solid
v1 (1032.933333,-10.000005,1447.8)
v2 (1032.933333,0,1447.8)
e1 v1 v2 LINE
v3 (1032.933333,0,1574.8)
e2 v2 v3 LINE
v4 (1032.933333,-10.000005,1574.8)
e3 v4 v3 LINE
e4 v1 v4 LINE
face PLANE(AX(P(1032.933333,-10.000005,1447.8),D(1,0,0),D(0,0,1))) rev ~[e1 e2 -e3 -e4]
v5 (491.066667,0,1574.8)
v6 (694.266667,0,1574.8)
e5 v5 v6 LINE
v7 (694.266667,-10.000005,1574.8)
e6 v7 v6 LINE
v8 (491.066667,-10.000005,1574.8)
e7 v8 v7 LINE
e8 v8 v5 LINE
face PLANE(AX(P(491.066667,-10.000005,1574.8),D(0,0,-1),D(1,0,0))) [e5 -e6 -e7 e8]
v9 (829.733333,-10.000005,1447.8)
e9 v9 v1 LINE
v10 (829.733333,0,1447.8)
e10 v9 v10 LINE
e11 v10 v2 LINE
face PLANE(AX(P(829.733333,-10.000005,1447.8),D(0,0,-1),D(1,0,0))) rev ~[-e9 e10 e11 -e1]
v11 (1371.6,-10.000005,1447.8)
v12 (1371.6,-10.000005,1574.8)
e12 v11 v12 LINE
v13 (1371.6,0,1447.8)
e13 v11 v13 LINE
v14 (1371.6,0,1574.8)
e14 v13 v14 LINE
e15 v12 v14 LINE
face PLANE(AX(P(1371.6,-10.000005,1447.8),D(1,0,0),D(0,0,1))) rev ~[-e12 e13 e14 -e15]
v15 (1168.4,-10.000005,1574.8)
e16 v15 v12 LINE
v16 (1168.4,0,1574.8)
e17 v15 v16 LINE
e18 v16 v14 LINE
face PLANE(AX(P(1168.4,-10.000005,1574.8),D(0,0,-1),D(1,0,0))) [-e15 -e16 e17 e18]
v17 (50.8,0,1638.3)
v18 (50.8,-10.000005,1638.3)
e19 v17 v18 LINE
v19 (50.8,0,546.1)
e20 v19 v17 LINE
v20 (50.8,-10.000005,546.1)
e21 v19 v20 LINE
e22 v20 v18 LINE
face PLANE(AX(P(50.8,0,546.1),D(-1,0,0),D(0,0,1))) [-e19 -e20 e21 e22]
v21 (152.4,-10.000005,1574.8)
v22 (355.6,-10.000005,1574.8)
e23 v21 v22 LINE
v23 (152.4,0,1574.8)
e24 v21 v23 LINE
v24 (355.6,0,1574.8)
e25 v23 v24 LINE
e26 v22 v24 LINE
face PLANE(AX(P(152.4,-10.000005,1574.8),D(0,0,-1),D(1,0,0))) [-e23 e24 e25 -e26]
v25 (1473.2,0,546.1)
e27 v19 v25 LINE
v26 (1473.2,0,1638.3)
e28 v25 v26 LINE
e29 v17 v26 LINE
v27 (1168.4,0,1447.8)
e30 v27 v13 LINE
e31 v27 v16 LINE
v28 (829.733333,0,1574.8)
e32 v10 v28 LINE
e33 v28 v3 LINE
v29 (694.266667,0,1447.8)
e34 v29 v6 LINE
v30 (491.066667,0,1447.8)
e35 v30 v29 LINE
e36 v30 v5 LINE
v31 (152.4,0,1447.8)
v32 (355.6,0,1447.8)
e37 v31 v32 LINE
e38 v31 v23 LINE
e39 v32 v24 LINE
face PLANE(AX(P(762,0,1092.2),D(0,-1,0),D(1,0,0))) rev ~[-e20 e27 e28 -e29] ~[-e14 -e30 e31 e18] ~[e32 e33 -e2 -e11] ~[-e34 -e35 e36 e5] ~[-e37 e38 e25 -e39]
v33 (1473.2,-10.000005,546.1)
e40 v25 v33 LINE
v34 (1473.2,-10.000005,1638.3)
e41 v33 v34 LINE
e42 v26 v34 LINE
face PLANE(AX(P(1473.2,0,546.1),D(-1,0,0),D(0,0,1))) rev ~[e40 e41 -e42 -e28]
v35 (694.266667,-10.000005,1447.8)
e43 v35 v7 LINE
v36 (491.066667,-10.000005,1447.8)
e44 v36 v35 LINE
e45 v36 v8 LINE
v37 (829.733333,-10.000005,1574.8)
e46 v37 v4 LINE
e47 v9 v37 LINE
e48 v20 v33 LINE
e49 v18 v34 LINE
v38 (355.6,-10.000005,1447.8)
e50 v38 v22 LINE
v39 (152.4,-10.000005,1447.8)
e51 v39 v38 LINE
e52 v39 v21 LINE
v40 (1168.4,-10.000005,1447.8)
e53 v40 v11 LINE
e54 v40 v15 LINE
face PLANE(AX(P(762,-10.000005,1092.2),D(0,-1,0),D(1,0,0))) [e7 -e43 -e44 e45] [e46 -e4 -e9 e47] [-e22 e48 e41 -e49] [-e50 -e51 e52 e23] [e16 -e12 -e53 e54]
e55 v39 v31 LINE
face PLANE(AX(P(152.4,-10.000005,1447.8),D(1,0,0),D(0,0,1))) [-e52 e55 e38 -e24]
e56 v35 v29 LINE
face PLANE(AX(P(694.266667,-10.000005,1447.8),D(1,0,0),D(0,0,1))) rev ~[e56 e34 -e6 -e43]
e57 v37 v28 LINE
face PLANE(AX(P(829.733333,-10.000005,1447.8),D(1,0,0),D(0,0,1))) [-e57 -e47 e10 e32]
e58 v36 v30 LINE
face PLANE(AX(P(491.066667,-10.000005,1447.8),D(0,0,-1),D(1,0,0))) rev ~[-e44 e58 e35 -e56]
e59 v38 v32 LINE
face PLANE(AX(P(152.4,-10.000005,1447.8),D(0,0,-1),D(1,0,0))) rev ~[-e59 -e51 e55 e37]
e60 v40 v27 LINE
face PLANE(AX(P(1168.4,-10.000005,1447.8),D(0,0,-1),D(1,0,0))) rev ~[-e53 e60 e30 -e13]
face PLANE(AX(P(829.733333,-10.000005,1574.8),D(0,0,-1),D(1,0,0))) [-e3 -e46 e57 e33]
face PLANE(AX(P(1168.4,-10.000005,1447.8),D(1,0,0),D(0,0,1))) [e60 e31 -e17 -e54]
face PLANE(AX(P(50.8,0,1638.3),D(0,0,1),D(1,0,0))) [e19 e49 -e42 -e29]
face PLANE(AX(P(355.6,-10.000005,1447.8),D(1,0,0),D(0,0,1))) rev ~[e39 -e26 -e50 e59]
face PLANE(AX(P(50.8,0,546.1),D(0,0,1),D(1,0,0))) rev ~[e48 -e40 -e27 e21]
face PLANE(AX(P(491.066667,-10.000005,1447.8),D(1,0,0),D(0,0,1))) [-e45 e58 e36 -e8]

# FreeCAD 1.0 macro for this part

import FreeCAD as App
import Part
import Sketcher
from FreeCAD import Vector
Q = App.Units.Quantity

doc = App.newDocument("Part")
body = doc.addObject("PartDesign::Body", "Body")

# Sketch on XZ plane
sketch1 = doc.addObject("Sketcher::SketchObject", "Sketch")
body.addObject(sketch1)
sketch1.AttachmentSupport = (doc.XZ_Plane, [""])
sketch1.MapMode = "FlatFace"
sketch1.addGeometry(Part.LineSegment(Vector(51, 1638, 0), Vector(51, 546, 0)), False)
sketch1.addGeometry(Part.LineSegment(Vector(51, 546, 0), Vector(1473, 546, 0)), False)
sketch1.addGeometry(Part.LineSegment(Vector(1473, 546, 0), Vector(1473, 1638, 0)), False)
sketch1.addGeometry(Part.LineSegment(Vector(1473, 1638, 0), Vector(51, 1638, 0)), False)
sketch1.addConstraint(Sketcher.Constraint("Coincident", 0, 2, 1, 1))
sketch1.addConstraint(Sketcher.Constraint("Coincident", 1, 2, 2, 1))
sketch1.addConstraint(Sketcher.Constraint("Coincident", 2, 2, 3, 1))
sketch1.addConstraint(Sketcher.Constraint("Coincident", 3, 2, 0, 1))
sketch1.addConstraint(Sketcher.Constraint("Vertical", 0))
sketch1.addConstraint(Sketcher.Constraint("Horizontal", 1))
sketch1.addConstraint(Sketcher.Constraint("Vertical", 2))
sketch1.addConstraint(Sketcher.Constraint("Horizontal", 3))
sketch1.addConstraint(Sketcher.Constraint("DistanceX", 1, 1, 1, 2, Q("56 in")))
sketch1.addConstraint(Sketcher.Constraint("DistanceY", 0, 2, 0, 1, Q("43 in")))
sketch1.addConstraint(Sketcher.Constraint("DistanceX", -1, 1, 0, 2, Q("2 in")))
sketch1.addConstraint(Sketcher.Constraint("DistanceY", -1, 1, 0, 2, Q("21.5 in")))
pad1 = doc.addObject("PartDesign::Pad", "Pad")
body.addObject(pad1)
pad1.Profile = sketch1
pad1.Length = 10.000005

# Sketch on XZ plane
sketch2 = doc.addObject("Sketcher::SketchObject", "Sketch001")
body.addObject(sketch2)
sketch2.AttachmentSupport = (doc.XZ_Plane, [""])
sketch2.MapMode = "FlatFace"
sketch2.AttachmentOffset = App.Placement(Vector(0, 0, 10.000005), App.Rotation())
sketch2.addGeometry(Part.LineSegment(Vector(152, 1575, 0), Vector(152, 1448, 0)), False)
sketch2.addGeometry(Part.LineSegment(Vector(152, 1448, 0), Vector(356, 1448, 0)), False)
sketch2.addGeometry(Part.LineSegment(Vector(356, 1448, 0), Vector(356, 1575, 0)), False)
sketch2.addGeometry(Part.LineSegment(Vector(356, 1575, 0), Vector(152, 1575, 0)), False)
sketch2.addConstraint(Sketcher.Constraint("Coincident", 0, 2, 1, 1))
sketch2.addConstraint(Sketcher.Constraint("Coincident", 1, 2, 2, 1))
sketch2.addConstraint(Sketcher.Constraint("Coincident", 2, 2, 3, 1))
sketch2.addConstraint(Sketcher.Constraint("Coincident", 3, 2, 0, 1))
sketch2.addConstraint(Sketcher.Constraint("Vertical", 0))
sketch2.addConstraint(Sketcher.Constraint("Horizontal", 1))
sketch2.addConstraint(Sketcher.Constraint("Vertical", 2))
sketch2.addConstraint(Sketcher.Constraint("Horizontal", 3))
sketch2.addConstraint(Sketcher.Constraint("DistanceX", 1, 1, 1, 2, Q("8 in")))
sketch2.addConstraint(Sketcher.Constraint("DistanceY", 0, 2, 0, 1, Q("5 in")))
sketch2.addConstraint(Sketcher.Constraint("DistanceX", -1, 1, 0, 2, Q("6 in")))
sketch2.addConstraint(Sketcher.Constraint("DistanceY", -1, 1, 0, 2, Q("57 in")))
pocket1 = doc.addObject("PartDesign::Pocket", "Pocket")
body.addObject(pocket1)
pocket1.Profile = sketch2
pocket1.Type = "ThroughAll"
doc.recompute()

linearpattern = doc.addObject("PartDesign::LinearPattern", "LinearPattern")
body.addObject(linearpattern)
linearpattern.Originals = [pocket1]
linearpattern.Direction = (doc.X_Axis, [""])
linearpattern.Mode = "offset"
linearpattern.Offset = 338.666667
linearpattern.Occurrences = 4
body.Tip = linearpattern

doc.recompute()
